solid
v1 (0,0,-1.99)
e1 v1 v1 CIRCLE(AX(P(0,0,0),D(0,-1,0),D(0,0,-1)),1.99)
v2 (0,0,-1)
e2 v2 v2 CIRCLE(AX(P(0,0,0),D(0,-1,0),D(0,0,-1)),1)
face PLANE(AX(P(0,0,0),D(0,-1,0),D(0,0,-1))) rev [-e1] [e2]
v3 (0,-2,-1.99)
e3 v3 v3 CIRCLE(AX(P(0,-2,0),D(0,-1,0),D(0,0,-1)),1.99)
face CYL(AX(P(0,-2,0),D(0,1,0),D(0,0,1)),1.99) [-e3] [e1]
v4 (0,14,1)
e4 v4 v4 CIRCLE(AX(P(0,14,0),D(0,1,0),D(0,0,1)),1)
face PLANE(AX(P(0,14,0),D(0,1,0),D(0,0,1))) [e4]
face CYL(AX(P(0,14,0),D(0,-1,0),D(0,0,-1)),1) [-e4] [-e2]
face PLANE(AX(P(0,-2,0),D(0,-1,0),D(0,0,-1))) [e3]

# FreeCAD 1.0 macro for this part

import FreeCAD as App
import Part
import Sketcher

V = App.Vector

doc = App.newDocument("Part")
params = doc.addObject("Spreadsheet::Sheet", "Params")
for row, (alias, value) in enumerate([
    ("sketch1_diameter", "2 mm"),
    ("pad1_length", "14 mm"),
    ("sketch2_diameter", "3.98 mm"),
    ("pad2_length", "2 mm"),
], start=1):
    params.set(f"A{row}", alias)
    params.set(f"B{row}", "=" + value)
    params.setAlias(f"B{row}", alias)

body = doc.addObject("PartDesign::Body", "Body")

sketch1 = body.newObject("Sketcher::SketchObject", "Sketch")
sketch1.AttachmentSupport = (doc.getObject("XZ_Plane"), [""])
sketch1.MapMode = "FlatFace"
sketch1.addGeometry(Part.Circle(V(0, 0, 0), V(0, 0, 1), 1), False)
sketch1.addConstraint(Sketcher.Constraint("Coincident", 0, 3, -1, 1))
sketch1.addConstraint(Sketcher.Constraint("Diameter", 0, 2.0))
sketch1.setExpression("Constraints[1]", "Params.sketch1_diameter")
pad1 = body.newObject("PartDesign::Pad", "Pad")
pad1.Profile = sketch1
pad1.setExpression("Length", "Params.pad1_length")
pad1.Reversed = True

sketch2 = body.newObject("Sketcher::SketchObject", "Sketch001")
sketch2.AttachmentSupport = (doc.getObject("XZ_Plane"), [""])
sketch2.MapMode = "FlatFace"
sketch2.addGeometry(Part.Circle(V(0, 0, 0), V(0, 0, 1), 2), False)
sketch2.addConstraint(Sketcher.Constraint("Coincident", 0, 3, -1, 1))
sketch2.addConstraint(Sketcher.Constraint("Diameter", 0, 3.98))
sketch2.setExpression("Constraints[1]", "Params.sketch2_diameter")
pad2 = body.newObject("PartDesign::Pad", "Pad001")
pad2.Profile = sketch2
pad2.setExpression("Length", "Params.pad2_length")

doc.recompute()
